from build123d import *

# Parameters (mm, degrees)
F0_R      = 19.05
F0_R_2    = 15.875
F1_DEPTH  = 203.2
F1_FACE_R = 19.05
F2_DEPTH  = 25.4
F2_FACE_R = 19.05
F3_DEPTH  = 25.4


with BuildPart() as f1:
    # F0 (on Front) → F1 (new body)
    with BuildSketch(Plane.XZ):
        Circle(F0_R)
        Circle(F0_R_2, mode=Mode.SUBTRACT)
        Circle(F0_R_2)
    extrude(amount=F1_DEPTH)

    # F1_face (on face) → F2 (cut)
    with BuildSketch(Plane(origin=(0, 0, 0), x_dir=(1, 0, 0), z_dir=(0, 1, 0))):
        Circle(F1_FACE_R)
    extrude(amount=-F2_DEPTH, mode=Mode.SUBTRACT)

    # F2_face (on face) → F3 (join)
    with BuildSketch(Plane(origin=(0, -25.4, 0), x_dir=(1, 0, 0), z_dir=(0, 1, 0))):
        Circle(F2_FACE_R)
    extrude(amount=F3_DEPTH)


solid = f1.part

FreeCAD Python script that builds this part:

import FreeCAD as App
import Part
import Sketcher
from FreeCAD import Vector
Q = App.Units.Quantity

doc = App.newDocument("Part")
body = doc.addObject("PartDesign::Body", "Body")

# Sketch on XZ plane
sketch1 = body.newObject("Sketcher::SketchObject", "Sketch")
sketch1.AttachmentSupport = (doc.getObject("XZ_Plane"), [""])
sketch1.MapMode = "FlatFace"
sketch1.addGeometry(Part.Circle(Vector(0, 0, 0), Vector(0, 0, 1), 19), False)
sketch1.addConstraint([
    Sketcher.Constraint("Coincident", 0, 3, -1, 1),
    Sketcher.Constraint("Diameter", 0, Q("1.5 in")),
])
pad1 = body.newObject("PartDesign::Pad", "Pad")
pad1.Profile = sketch1
pad1.Length = Q("8 in")

# Sketch on XZ plane
sketch2 = body.newObject("Sketcher::SketchObject", "Sketch001")
sketch2.AttachmentSupport = (doc.getObject("XZ_Plane"), [""])
sketch2.MapMode = "FlatFace"
sketch2.addGeometry(Part.Circle(Vector(0, 0, 0), Vector(0, 0, 1), 19), False)
sketch2.addConstraint([
    Sketcher.Constraint("Coincident", 0, 3, -1, 1),
    Sketcher.Constraint("Diameter", 0, Q("1.5 in")),
])
pocket1 = body.newObject("PartDesign::Pocket", "Pocket")
pocket1.Profile = sketch2
pocket1.Length = Q("1 in")
pocket1.Reversed = True

# Sketch on XZ plane
sketch3 = body.newObject("Sketcher::SketchObject", "Sketch002")
sketch3.AttachmentSupport = (doc.getObject("XZ_Plane"), [""])
sketch3.MapMode = "FlatFace"
sketch3.AttachmentOffset = App.Placement(Vector(0, 0, 1 * 25.4), App.Rotation())
sketch3.addGeometry(Part.Circle(Vector(0, 0, 0), Vector(0, 0, 1), 19), False)
sketch3.addConstraint([
    Sketcher.Constraint("Coincident", 0, 3, -1, 1),
    Sketcher.Constraint("Diameter", 0, Q("1.5 in")),
])
pad2 = body.newObject("PartDesign::Pad", "Pad001")
pad2.Profile = sketch3
pad2.Length = Q("1 in")
pad2.Reversed = True

doc.recompute()
